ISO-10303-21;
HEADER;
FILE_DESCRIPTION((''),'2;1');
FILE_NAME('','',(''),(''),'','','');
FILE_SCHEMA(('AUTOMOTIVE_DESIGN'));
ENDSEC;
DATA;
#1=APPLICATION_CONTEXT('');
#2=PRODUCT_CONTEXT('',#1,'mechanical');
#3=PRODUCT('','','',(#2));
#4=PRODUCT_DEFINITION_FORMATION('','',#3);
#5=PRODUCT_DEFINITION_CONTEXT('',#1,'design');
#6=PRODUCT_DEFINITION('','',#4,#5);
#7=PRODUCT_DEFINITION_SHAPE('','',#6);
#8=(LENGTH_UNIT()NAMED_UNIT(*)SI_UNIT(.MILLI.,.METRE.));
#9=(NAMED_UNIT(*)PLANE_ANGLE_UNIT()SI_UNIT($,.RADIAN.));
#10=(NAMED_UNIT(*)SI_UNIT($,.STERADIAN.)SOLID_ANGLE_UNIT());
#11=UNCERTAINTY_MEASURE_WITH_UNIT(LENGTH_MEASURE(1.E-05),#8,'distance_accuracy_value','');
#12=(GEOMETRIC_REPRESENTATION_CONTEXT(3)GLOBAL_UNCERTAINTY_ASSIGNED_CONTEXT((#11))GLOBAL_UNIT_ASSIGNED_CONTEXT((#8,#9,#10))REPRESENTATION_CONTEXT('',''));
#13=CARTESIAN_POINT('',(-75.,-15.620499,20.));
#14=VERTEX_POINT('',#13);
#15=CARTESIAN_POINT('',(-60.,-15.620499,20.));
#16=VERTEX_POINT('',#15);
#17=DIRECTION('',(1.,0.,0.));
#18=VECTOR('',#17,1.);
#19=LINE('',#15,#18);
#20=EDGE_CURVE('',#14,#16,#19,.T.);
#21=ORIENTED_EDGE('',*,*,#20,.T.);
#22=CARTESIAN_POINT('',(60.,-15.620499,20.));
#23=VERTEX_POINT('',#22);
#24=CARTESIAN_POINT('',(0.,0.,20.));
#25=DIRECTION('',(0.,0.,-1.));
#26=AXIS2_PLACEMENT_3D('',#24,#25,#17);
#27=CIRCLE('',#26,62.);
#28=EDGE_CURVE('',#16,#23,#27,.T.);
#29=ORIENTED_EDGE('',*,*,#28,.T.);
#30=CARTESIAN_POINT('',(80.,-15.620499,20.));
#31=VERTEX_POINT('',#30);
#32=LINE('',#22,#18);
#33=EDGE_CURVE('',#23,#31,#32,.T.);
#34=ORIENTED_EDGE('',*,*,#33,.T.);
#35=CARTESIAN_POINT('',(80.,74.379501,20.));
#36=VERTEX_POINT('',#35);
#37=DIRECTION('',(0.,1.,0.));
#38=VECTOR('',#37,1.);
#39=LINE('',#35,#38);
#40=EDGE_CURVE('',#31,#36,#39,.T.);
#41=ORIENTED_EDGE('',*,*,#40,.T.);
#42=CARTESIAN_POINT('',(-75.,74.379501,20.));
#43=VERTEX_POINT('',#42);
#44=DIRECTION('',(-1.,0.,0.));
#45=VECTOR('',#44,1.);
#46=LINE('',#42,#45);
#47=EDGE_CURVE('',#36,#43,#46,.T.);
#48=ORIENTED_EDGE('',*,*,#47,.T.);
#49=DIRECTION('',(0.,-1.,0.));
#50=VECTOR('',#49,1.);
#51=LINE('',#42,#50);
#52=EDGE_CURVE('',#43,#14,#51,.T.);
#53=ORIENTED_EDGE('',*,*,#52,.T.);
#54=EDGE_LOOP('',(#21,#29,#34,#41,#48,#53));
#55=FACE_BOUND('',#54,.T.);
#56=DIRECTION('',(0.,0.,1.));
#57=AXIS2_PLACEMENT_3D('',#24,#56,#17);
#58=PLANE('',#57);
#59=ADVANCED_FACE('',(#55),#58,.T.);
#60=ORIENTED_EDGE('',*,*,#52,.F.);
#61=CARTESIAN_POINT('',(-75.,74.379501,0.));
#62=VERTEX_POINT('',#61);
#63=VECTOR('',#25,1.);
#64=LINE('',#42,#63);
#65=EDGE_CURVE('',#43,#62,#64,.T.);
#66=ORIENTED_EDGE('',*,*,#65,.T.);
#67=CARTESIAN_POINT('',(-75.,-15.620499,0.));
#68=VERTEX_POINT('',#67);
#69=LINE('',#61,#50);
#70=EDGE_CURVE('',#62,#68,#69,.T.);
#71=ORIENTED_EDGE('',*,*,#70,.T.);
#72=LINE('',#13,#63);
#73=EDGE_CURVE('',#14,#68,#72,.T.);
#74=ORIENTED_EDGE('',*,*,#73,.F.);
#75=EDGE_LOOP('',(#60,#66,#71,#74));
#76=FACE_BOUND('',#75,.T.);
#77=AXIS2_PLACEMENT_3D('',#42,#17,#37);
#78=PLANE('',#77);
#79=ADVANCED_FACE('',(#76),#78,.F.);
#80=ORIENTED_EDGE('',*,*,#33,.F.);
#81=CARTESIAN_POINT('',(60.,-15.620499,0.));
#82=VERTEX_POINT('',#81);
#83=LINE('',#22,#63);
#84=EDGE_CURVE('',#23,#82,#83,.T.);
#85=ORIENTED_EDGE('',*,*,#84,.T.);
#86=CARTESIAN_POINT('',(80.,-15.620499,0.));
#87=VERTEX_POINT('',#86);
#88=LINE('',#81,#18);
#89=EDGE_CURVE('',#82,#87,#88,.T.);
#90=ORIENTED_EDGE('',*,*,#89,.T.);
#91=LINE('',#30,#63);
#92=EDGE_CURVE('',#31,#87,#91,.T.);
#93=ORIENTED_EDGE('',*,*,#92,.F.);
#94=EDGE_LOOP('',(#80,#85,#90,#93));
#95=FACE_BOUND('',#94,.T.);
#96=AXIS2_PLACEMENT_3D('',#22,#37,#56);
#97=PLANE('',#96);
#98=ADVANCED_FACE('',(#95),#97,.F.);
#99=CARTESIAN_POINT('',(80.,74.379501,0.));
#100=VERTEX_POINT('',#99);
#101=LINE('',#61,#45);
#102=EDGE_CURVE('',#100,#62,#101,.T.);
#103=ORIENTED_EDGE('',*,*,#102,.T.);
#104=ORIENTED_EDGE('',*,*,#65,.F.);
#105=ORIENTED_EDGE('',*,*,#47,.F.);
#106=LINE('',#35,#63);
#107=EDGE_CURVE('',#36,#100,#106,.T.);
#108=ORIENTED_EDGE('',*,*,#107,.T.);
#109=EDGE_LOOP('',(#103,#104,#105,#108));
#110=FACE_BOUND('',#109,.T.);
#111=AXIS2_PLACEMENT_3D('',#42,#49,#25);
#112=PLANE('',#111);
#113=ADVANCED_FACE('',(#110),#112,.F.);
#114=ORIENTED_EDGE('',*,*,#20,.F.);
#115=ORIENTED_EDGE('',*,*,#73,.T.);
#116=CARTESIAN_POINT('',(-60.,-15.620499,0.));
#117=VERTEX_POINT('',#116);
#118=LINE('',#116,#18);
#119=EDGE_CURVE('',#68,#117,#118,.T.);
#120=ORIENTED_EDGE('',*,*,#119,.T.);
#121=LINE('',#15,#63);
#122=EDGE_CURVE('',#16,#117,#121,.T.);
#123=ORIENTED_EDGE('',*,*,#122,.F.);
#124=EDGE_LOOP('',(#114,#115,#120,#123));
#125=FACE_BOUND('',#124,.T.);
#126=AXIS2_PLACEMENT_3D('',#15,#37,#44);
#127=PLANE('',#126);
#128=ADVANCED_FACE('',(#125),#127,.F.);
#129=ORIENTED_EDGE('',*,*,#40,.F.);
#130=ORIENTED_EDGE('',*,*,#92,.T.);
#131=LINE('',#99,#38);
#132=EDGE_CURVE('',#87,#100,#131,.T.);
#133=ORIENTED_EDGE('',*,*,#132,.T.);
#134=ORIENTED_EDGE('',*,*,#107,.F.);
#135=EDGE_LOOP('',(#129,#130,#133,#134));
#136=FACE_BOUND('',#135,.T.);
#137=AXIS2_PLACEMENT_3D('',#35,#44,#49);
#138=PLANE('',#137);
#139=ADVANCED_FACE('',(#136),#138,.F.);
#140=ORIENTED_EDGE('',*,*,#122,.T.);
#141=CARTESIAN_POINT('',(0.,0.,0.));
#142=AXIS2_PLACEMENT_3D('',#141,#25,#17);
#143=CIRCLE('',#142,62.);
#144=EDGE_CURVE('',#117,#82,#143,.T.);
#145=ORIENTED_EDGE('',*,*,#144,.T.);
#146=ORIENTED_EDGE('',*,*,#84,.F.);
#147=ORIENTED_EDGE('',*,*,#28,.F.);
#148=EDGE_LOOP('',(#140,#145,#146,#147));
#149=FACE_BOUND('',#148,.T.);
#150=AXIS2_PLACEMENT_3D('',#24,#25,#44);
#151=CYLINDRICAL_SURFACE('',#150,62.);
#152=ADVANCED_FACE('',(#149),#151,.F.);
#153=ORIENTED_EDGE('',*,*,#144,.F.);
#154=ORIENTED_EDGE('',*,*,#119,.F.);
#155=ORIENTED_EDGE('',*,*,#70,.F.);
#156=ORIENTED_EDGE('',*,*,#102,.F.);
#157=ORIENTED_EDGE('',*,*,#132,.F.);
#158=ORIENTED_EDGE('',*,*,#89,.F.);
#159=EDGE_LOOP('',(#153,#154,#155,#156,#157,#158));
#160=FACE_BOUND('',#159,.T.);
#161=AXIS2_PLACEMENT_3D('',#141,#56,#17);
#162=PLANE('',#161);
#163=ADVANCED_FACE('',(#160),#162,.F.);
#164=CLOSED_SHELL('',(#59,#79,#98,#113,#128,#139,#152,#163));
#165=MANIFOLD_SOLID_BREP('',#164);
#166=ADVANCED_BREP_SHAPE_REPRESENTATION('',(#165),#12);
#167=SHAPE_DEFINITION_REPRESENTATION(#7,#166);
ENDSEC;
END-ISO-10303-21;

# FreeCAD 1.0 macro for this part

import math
import FreeCAD as App
import Part
import Sketcher
from FreeCAD import Vector
Q = App.Units.Quantity

doc = App.newDocument("Part")
body = doc.addObject("PartDesign::Body", "Body")

sketch1 = doc.addObject("Sketcher::SketchObject", "Sketch")
body.addObject(sketch1)
sketch1.AttachmentSupport = (doc.XY_Plane, [""])
sketch1.MapMode = "FlatFace"
sketch1.addGeometry(Part.LineSegment(Vector(-75, 74, 0), Vector(-75, -16, 0)), False)
sketch1.addGeometry(Part.LineSegment(Vector(-75, -16, 0), Vector(-60, -16, 0)), False)
sketch1.addGeometry(Part.ArcOfCircle(Part.Circle(Vector(0, 0, 0), Vector(0, 0, 1), 62), math.radians(-15), math.radians(195)), False)
sketch1.addGeometry(Part.LineSegment(Vector(60, -16, 0), Vector(80, -16, 0)), False)
sketch1.addGeometry(Part.LineSegment(Vector(80, -16, 0), Vector(80, 74, 0)), False)
sketch1.addGeometry(Part.LineSegment(Vector(80, 74, 0), Vector(-75, 74, 0)), False)
sketch1.addConstraint(Sketcher.Constraint("Coincident", 0, 2, 1, 1))
sketch1.addConstraint(Sketcher.Constraint("Coincident", 1, 2, 2, 2))
sketch1.addConstraint(Sketcher.Constraint("Coincident", 2, 1, 3, 1))
sketch1.addConstraint(Sketcher.Constraint("Coincident", 3, 2, 4, 1))
sketch1.addConstraint(Sketcher.Constraint("Coincident", 4, 2, 5, 1))
sketch1.addConstraint(Sketcher.Constraint("Coincident", 5, 2, 0, 1))
sketch1.addConstraint(Sketcher.Constraint("Vertical", 0))
sketch1.addConstraint(Sketcher.Constraint("Horizontal", 1))
sketch1.addConstraint(Sketcher.Constraint("Horizontal", 3))
sketch1.addConstraint(Sketcher.Constraint("Vertical", 4))
sketch1.addConstraint(Sketcher.Constraint("Horizontal", 5))
sketch1.addConstraint(Sketcher.Constraint("Coincident", 2, 3, -1, 1))
sketch1.addConstraint(Sketcher.Constraint("Horizontal", 1, 2, 2, 1))
sketch1.addConstraint(Sketcher.Constraint("Radius", 2, Q("62 mm")))
sketch1.addConstraint(Sketcher.Constraint("DistanceX", 1, 1, 1, 2, Q("15 mm")))
sketch1.addConstraint(Sketcher.Constraint("DistanceX", 3, 1, 3, 2, Q("20 mm")))
sketch1.addConstraint(Sketcher.Constraint("DistanceX", 5, 2, 5, 1, Q("155 mm")))
sketch1.addConstraint(Sketcher.Constraint("DistanceY", 0, 2, 0, 1, Q("90 mm")))
pad1 = doc.addObject("PartDesign::Pad", "Pad")
body.addObject(pad1)
pad1.Profile = sketch1
pad1.Length = 20

doc.recompute()
